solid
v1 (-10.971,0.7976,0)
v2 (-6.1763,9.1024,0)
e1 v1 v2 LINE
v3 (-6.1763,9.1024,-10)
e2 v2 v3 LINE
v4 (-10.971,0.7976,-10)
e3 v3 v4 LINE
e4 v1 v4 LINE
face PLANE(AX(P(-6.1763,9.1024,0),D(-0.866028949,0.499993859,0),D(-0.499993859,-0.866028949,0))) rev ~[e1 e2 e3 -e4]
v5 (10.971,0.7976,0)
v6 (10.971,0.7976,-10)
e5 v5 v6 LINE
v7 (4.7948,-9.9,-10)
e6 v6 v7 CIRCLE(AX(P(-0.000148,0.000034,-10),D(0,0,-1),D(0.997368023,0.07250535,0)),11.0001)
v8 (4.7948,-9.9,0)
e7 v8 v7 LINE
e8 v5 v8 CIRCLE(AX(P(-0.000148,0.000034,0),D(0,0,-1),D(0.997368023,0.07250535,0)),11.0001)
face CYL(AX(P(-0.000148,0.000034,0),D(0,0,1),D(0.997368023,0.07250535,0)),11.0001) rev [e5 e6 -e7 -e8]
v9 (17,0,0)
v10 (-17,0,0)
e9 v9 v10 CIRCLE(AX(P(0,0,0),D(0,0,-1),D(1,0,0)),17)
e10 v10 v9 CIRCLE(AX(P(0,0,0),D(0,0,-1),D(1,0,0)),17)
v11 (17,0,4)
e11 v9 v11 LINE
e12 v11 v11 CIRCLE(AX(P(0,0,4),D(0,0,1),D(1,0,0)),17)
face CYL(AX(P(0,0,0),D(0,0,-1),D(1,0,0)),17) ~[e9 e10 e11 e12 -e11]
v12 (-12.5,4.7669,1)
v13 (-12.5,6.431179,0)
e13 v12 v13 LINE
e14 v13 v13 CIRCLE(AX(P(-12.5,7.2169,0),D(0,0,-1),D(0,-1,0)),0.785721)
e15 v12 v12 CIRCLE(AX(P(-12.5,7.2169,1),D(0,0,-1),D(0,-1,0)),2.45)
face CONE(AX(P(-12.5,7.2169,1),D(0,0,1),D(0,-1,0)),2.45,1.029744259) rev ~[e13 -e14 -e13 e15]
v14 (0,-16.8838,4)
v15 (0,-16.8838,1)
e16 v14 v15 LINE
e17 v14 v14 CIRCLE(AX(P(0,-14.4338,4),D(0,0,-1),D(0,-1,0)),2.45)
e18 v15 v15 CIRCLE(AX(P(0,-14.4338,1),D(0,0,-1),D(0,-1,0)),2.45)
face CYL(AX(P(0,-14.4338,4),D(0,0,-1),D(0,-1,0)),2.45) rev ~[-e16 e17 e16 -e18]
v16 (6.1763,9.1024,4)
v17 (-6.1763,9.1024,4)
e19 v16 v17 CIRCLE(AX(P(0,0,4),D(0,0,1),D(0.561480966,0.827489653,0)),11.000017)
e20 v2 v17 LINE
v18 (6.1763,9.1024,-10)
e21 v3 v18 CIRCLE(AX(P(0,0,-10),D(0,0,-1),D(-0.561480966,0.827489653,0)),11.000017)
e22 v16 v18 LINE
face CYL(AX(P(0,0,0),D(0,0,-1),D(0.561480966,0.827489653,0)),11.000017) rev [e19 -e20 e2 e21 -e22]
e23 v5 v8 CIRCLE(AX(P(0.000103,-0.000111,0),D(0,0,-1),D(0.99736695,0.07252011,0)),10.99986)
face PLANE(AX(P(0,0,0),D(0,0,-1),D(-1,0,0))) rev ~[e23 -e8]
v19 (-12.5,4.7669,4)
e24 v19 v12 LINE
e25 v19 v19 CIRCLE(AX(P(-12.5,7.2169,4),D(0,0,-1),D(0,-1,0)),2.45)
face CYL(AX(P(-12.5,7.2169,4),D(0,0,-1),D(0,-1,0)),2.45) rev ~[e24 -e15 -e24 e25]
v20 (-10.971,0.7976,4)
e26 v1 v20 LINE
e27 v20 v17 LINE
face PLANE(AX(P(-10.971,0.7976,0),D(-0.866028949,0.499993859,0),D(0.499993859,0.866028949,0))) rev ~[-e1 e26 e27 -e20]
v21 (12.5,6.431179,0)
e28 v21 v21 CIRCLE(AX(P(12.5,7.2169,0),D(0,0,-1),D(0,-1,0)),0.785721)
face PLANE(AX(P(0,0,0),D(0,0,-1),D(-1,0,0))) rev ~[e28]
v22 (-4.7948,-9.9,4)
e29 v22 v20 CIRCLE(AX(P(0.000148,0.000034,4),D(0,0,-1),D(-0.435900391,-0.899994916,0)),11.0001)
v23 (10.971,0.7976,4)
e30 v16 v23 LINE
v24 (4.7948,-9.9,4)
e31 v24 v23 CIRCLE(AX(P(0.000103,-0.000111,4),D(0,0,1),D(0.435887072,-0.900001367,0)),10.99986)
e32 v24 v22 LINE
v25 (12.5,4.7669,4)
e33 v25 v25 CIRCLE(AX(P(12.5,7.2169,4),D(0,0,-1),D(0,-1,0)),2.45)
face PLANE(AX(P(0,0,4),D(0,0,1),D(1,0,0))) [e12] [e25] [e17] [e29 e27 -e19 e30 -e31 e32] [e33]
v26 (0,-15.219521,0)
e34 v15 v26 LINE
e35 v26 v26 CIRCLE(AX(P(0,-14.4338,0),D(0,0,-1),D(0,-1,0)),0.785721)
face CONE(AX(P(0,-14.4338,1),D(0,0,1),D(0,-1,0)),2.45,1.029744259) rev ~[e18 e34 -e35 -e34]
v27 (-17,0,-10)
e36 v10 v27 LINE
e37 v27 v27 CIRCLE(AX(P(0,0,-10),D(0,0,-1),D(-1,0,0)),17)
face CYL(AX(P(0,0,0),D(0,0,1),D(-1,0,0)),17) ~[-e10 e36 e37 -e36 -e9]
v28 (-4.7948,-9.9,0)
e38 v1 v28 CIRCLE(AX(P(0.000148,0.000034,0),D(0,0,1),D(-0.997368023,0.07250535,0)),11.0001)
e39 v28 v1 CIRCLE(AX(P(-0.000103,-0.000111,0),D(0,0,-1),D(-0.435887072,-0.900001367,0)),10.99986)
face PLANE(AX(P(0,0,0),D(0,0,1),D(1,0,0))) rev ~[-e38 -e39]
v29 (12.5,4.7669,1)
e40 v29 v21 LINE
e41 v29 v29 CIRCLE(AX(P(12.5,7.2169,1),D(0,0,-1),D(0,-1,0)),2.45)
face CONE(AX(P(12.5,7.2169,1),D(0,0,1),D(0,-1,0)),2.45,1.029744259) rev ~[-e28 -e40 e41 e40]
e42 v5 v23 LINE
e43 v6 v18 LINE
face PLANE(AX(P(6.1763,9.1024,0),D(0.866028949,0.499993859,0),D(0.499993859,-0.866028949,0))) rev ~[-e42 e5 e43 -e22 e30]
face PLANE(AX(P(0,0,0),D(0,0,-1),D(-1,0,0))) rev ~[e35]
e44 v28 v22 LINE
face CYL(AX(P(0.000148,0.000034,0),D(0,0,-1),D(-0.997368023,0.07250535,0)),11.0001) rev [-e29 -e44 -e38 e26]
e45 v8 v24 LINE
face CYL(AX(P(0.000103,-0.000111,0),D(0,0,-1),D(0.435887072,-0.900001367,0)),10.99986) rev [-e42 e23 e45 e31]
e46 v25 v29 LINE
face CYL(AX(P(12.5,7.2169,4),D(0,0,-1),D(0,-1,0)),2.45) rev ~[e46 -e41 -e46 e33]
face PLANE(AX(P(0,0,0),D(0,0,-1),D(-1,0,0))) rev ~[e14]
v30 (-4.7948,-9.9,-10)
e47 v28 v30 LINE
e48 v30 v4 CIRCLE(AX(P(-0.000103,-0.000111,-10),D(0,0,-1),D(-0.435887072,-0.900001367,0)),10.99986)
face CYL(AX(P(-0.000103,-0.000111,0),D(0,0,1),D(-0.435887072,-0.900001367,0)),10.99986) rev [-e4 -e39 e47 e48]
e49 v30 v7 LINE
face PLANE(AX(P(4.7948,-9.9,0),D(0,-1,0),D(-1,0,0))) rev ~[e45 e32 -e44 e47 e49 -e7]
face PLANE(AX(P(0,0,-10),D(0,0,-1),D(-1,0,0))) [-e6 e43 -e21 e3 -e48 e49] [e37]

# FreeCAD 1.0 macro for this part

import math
import FreeCAD as App
import Part
import Sketcher

V = App.Vector
Q = App.Units.Quantity

doc = App.newDocument("Part")
body = doc.addObject("PartDesign::Body", "Body")

# Sketch on XY plane
sketch1 = body.newObject("Sketcher::SketchObject", "Sketch")
sketch1.AttachmentSupport = (doc.getObject("XY_Plane"), [""])
sketch1.MapMode = "FlatFace"
sketch1.addGeometry(Part.Circle(V(0, 0, 0), V(0, 0, 1), 17), False)
sketch1.addGeometry(Part.ArcOfCircle(Part.Circle(V(0, 0, 0), V(0, 0, 1), 11), math.radians(-64), math.radians(4)), False)
sketch1.addGeometry(Part.LineSegment(V(5, -10, 0), V(-5, -10, 0)), False)
sketch1.addGeometry(Part.ArcOfCircle(Part.Circle(V(0, 0, 0), V(0, 0, 1), 11), math.radians(176), math.radians(244)), False)
sketch1.addGeometry(Part.LineSegment(V(-11, 1, 0), V(-6, 9, 0)), False)
sketch1.addGeometry(Part.ArcOfCircle(Part.Circle(V(0, 0, 0), V(0, 0, 1), 11), math.radians(56), math.radians(124)), False)
sketch1.addGeometry(Part.LineSegment(V(6, 9, 0), V(11, 1, 0)), False)
sketch1.addConstraint(Sketcher.Constraint("Coincident", 1, 1, 2, 1))
sketch1.addConstraint(Sketcher.Constraint("Coincident", 2, 2, 3, 2))
sketch1.addConstraint(Sketcher.Constraint("Coincident", 3, 1, 4, 1))
sketch1.addConstraint(Sketcher.Constraint("Coincident", 4, 2, 5, 2))
sketch1.addConstraint(Sketcher.Constraint("Coincident", 5, 1, 6, 1))
sketch1.addConstraint(Sketcher.Constraint("Coincident", 6, 2, 1, 2))
sketch1.addConstraint(Sketcher.Constraint("Horizontal", 2))
sketch1.addConstraint(Sketcher.Constraint("Coincident", 0, 3, -1, 1))
sketch1.addConstraint(Sketcher.Constraint("Coincident", 1, 3, -1, 1))
sketch1.addConstraint(Sketcher.Constraint("Coincident", 3, 3, -1, 1))
sketch1.addConstraint(Sketcher.Constraint("Coincident", 5, 3, -1, 1))
sketch1.addConstraint(Sketcher.Constraint("Equal", 1, 3))
sketch1.addConstraint(Sketcher.Constraint("Equal", 3, 5))
sketch1.addConstraint(Sketcher.Constraint("Horizontal", 4, 2, 5, 1))
sketch1.addConstraint(Sketcher.Constraint("Horizontal", 3, 1, 6, 2))
sketch1.addConstraint(Sketcher.Constraint("Diameter", 0, Q("34 mm")))
sketch1.addConstraint(Sketcher.Constraint("Radius", 1, Q("11 mm")))
sketch1.addConstraint(Sketcher.Constraint("DistanceY", 1, 1, -1, 1, Q("9.9 mm")))
sketch1.addConstraint(Sketcher.Constraint("Angle", 4, Q("60.0004 deg")))
sketch1.addConstraint(Sketcher.Constraint("DistanceX", 3, 1, -1, 1, Q("10.971 mm")))
pad1 = body.newObject("PartDesign::Pad", "Pad")
pad1.Profile = sketch1
pad1.Length = 4

# Sketch on XY plane
sketch2 = body.newObject("Sketcher::SketchObject", "Sketch001")
sketch2.AttachmentSupport = (doc.getObject("XY_Plane"), [""])
sketch2.MapMode = "FlatFace"
sketch2.AttachmentOffset = App.Placement(V(0, 0, 4), App.Rotation())
sketch2.addGeometry(Part.Circle(V(12.5, 7.2, 0), V(0, 0, 1), 2.5), False)
sketch2.addGeometry(Part.Circle(V(0, -14.4, 0), V(0, 0, 1), 2.5), False)
sketch2.addGeometry(Part.Circle(V(-12.5, 7.2, 0), V(0, 0, 1), 2.5), False)
sketch2.addConstraint(Sketcher.Constraint("Equal", 0, 1))
sketch2.addConstraint(Sketcher.Constraint("Equal", 1, 2))
sketch2.addConstraint(Sketcher.Constraint("Symmetric", 0, 3, 2, 3, -2))
sketch2.addConstraint(Sketcher.Constraint("PointOnObject", 1, 3, -2))
sketch2.addConstraint(Sketcher.Constraint("Diameter", 0, Q("4.9 mm")))
sketch2.addConstraint(Sketcher.Constraint("DistanceX", 2, 3, 0, 3, Q("25 mm")))
sketch2.addConstraint(Sketcher.Constraint("DistanceY", -1, 1, 0, 3, Q("7.217 mm")))
sketch2.addConstraint(Sketcher.Constraint("DistanceY", 1, 3, -1, 1, Q("14.4338 mm")))
doc.recompute()
hole = body.newObject("PartDesign::Hole", "Hole")
hole.Profile = sketch2
hole.ThreadType = "None"
hole.Diameter = 4.9
hole.DepthType = "Dimension"
hole.Depth = 3
hole.DrillPoint = "Angled"
hole.DrillPointAngle = 118

# Sketch on XY plane
sketch3 = body.newObject("Sketcher::SketchObject", "Sketch002")
sketch3.AttachmentSupport = (doc.getObject("XY_Plane"), [""])
sketch3.MapMode = "FlatFace"
sketch3.addGeometry(Part.Circle(V(0, 0, 0), V(0, 0, 1), 17), False)
sketch3.addGeometry(Part.ArcOfCircle(Part.Circle(V(0, 0, 0), V(0, 0, 1), 11), math.radians(176), math.radians(244)), False)
sketch3.addGeometry(Part.LineSegment(V(-5, -10, 0), V(5, -10, 0)), False)
sketch3.addGeometry(Part.ArcOfCircle(Part.Circle(V(0, 0, 0), V(0, 0, 1), 11), math.radians(-64), math.radians(4)), False)
sketch3.addGeometry(Part.LineSegment(V(11, 1, 0), V(6, 9, 0)), False)
sketch3.addGeometry(Part.ArcOfCircle(Part.Circle(V(0, 0, 0), V(0, 0, 1), 11), math.radians(56), math.radians(124)), False)
sketch3.addGeometry(Part.LineSegment(V(-6, 9, 0), V(-11, 1, 0)), False)
sketch3.addConstraint(Sketcher.Constraint("Coincident", 1, 2, 2, 1))
sketch3.addConstraint(Sketcher.Constraint("Coincident", 2, 2, 3, 1))
sketch3.addConstraint(Sketcher.Constraint("Coincident", 3, 2, 4, 1))
sketch3.addConstraint(Sketcher.Constraint("Coincident", 4, 2, 5, 1))
sketch3.addConstraint(Sketcher.Constraint("Coincident", 5, 2, 6, 1))
sketch3.addConstraint(Sketcher.Constraint("Coincident", 6, 2, 1, 1))
sketch3.addConstraint(Sketcher.Constraint("Horizontal", 2))
sketch3.addConstraint(Sketcher.Constraint("Coincident", 0, 3, -1, 1))
sketch3.addConstraint(Sketcher.Constraint("Coincident", 1, 3, -1, 1))
sketch3.addConstraint(Sketcher.Constraint("Coincident", 3, 3, -1, 1))
sketch3.addConstraint(Sketcher.Constraint("Coincident", 5, 3, -1, 1))
sketch3.addConstraint(Sketcher.Constraint("Equal", 1, 3))
sketch3.addConstraint(Sketcher.Constraint("Equal", 3, 5))
sketch3.addConstraint(Sketcher.Constraint("Horizontal", 4, 2, 5, 2))
sketch3.addConstraint(Sketcher.Constraint("Horizontal", 3, 2, 6, 2))
sketch3.addConstraint(Sketcher.Constraint("Diameter", 0, Q("34 mm")))
sketch3.addConstraint(Sketcher.Constraint("Radius", 1, Q("11 mm")))
sketch3.addConstraint(Sketcher.Constraint("Angle", 4, Q("119.9996 deg")))
sketch3.addConstraint(Sketcher.Constraint("DistanceY", 1, 2, -1, 1, Q("9.9 mm")))
sketch3.addConstraint(Sketcher.Constraint("DistanceX", -1, 1, 3, 2, Q("10.971 mm")))
pad2 = body.newObject("PartDesign::Pad", "Pad001")
pad2.Profile = sketch3
pad2.Length = 10
pad2.Reversed = True

doc.recompute()
